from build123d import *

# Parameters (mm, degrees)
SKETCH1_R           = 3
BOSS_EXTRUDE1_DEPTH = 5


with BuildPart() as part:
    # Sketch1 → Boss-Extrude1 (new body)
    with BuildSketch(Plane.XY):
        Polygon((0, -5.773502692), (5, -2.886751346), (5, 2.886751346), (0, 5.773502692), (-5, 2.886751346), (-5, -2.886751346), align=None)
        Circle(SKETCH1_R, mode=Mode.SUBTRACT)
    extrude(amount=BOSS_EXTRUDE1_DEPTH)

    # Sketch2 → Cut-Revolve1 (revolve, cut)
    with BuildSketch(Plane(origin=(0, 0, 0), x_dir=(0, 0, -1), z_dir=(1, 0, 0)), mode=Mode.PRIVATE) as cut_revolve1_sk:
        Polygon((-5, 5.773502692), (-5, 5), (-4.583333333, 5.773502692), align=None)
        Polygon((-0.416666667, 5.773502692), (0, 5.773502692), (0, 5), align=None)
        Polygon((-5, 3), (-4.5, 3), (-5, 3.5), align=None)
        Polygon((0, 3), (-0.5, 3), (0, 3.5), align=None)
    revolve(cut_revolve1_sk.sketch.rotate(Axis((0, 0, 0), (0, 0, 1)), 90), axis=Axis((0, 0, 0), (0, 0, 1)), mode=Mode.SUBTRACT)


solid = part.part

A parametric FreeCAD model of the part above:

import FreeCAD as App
import Part
import Sketcher

V = App.Vector
Q = App.Units.Quantity


def add_polygon(sketch, points):
    """Adds a closed chain of lines whose ends are joined by coincident constraints."""
    first, n = sketch.GeometryCount, len(points)
    for a, b in zip(points, points[1:] + points[:1]):
        sketch.addGeometry(Part.LineSegment(App.Vector(*a, 0), App.Vector(*b, 0)), False)
    for i in range(n):
        sketch.addConstraint(Sketcher.Constraint("Coincident", first + i, 2, first + (i + 1) % n, 1))

doc = App.newDocument("Part")
body = doc.addObject("PartDesign::Body", "Body")

# Sketch on XY plane
sketch1 = doc.addObject("Sketcher::SketchObject", "Sketch")
body.addObject(sketch1)
sketch1.AttachmentSupport = (doc.XY_Plane, [""])
sketch1.MapMode = "FlatFace"
add_polygon(sketch1, [(0, -5.8), (5, -2.9), (5, 2.9), (0, 5.8), (-5, 2.9), (-5, -2.9)])  # lines 0-5
sketch1.addGeometry(Part.Circle(V(0, 0, 0), V(0, 0, 1), 3), False)  # 6
sketch1.addConstraint([
    Sketcher.Constraint("Vertical", 1),
    Sketcher.Constraint("Vertical", 4),
    Sketcher.Constraint("Coincident", 6, 3, -1, 1),
    Sketcher.Constraint("Symmetric", 0, 2, 3, 2, -1, 1),
    Sketcher.Constraint("Symmetric", 2, 2, 5, 2, -1, 1),
    Sketcher.Constraint("PointOnObject", 2, 2, -2),
    Sketcher.Constraint("Parallel", 2, 5),
    Sketcher.Constraint("Horizontal", 1, 2, 3, 2),
    Sketcher.Constraint("Diameter", 6, Q("6 mm")),
    Sketcher.Constraint("Angle", 0, Q("30 deg")),
    Sketcher.Constraint("DistanceX", -1, 1, 0, 2, Q("5 mm")),
    Sketcher.Constraint("DistanceY", 1, 1, 1, 2, Q("5.773503 mm")),
])
pad1 = doc.addObject("PartDesign::Pad", "Pad")
body.addObject(pad1)
pad1.Profile = sketch1
pad1.Length = 5

# Sketch on YZ plane
sketch2 = doc.addObject("Sketcher::SketchObject", "Sketch001")
body.addObject(sketch2)
sketch2.AttachmentSupport = (doc.YZ_Plane, [""])
sketch2.MapMode = "FlatFace"
add_polygon(sketch2, [(5.77, 5), (5, 5), (5.77, 4.58)])  # lines 0-2
add_polygon(sketch2, [(5.77, 0), (5.77, 0.42), (5, 0)])  # lines 3-5
add_polygon(sketch2, [(3, 5), (3, 4.5), (3.5, 5)])  # lines 6-8
add_polygon(sketch2, [(3, 0.5), (3, 0), (3.5, 0)])  # lines 9-11
sketch2.addConstraint([
    Sketcher.Constraint("Horizontal", 0),
    Sketcher.Constraint("Vertical", 2),
    Sketcher.Constraint("Vertical", 3),
    Sketcher.Constraint("Horizontal", 5),
    Sketcher.Constraint("Vertical", 6),
    Sketcher.Constraint("Horizontal", 8),
    Sketcher.Constraint("Vertical", 9),
    Sketcher.Constraint("Horizontal", 10),
    Sketcher.Constraint("PointOnObject", 4, 2, -1),
    Sketcher.Constraint("PointOnObject", 9, 2, -1),
    Sketcher.Constraint("Perpendicular", 7, 11),
    Sketcher.Constraint("Horizontal", 2, 2, 7, 2),
    Sketcher.Constraint("Vertical", 2, 2, 3, 2),
    Sketcher.Constraint("Vertical", 0, 2, 4, 2),
    Sketcher.Constraint("Vertical", 8, 2, 9, 2),
    Sketcher.Constraint("Vertical", 7, 2, 10, 2),
    Sketcher.Constraint("Equal", 2, 3),
    Sketcher.Constraint("Equal", 10, 6),
    Sketcher.Constraint("DistanceX", 8, 2, 8, 1, Q("0.5 mm")),
    Sketcher.Constraint("DistanceX", -1, 1, 0, 2, Q("5 mm")),
    Sketcher.Constraint("DistanceY", -1, 1, 0, 2, Q("5 mm")),
    Sketcher.Constraint("DistanceX", -1, 1, 6, 2, Q("3 mm")),
    Sketcher.Constraint("Distance", 1, Q("0.878588 mm")),
    Sketcher.Constraint("DistanceX", 0, 2, 0, 1, Q("0.773503 mm")),
])
groove = doc.addObject("PartDesign::Groove", "Groove")
body.addObject(groove)
groove.Profile = sketch2
groove.ReferenceAxis = (sketch2, ["V_Axis"])
groove.Angle = 360

doc.recompute()
